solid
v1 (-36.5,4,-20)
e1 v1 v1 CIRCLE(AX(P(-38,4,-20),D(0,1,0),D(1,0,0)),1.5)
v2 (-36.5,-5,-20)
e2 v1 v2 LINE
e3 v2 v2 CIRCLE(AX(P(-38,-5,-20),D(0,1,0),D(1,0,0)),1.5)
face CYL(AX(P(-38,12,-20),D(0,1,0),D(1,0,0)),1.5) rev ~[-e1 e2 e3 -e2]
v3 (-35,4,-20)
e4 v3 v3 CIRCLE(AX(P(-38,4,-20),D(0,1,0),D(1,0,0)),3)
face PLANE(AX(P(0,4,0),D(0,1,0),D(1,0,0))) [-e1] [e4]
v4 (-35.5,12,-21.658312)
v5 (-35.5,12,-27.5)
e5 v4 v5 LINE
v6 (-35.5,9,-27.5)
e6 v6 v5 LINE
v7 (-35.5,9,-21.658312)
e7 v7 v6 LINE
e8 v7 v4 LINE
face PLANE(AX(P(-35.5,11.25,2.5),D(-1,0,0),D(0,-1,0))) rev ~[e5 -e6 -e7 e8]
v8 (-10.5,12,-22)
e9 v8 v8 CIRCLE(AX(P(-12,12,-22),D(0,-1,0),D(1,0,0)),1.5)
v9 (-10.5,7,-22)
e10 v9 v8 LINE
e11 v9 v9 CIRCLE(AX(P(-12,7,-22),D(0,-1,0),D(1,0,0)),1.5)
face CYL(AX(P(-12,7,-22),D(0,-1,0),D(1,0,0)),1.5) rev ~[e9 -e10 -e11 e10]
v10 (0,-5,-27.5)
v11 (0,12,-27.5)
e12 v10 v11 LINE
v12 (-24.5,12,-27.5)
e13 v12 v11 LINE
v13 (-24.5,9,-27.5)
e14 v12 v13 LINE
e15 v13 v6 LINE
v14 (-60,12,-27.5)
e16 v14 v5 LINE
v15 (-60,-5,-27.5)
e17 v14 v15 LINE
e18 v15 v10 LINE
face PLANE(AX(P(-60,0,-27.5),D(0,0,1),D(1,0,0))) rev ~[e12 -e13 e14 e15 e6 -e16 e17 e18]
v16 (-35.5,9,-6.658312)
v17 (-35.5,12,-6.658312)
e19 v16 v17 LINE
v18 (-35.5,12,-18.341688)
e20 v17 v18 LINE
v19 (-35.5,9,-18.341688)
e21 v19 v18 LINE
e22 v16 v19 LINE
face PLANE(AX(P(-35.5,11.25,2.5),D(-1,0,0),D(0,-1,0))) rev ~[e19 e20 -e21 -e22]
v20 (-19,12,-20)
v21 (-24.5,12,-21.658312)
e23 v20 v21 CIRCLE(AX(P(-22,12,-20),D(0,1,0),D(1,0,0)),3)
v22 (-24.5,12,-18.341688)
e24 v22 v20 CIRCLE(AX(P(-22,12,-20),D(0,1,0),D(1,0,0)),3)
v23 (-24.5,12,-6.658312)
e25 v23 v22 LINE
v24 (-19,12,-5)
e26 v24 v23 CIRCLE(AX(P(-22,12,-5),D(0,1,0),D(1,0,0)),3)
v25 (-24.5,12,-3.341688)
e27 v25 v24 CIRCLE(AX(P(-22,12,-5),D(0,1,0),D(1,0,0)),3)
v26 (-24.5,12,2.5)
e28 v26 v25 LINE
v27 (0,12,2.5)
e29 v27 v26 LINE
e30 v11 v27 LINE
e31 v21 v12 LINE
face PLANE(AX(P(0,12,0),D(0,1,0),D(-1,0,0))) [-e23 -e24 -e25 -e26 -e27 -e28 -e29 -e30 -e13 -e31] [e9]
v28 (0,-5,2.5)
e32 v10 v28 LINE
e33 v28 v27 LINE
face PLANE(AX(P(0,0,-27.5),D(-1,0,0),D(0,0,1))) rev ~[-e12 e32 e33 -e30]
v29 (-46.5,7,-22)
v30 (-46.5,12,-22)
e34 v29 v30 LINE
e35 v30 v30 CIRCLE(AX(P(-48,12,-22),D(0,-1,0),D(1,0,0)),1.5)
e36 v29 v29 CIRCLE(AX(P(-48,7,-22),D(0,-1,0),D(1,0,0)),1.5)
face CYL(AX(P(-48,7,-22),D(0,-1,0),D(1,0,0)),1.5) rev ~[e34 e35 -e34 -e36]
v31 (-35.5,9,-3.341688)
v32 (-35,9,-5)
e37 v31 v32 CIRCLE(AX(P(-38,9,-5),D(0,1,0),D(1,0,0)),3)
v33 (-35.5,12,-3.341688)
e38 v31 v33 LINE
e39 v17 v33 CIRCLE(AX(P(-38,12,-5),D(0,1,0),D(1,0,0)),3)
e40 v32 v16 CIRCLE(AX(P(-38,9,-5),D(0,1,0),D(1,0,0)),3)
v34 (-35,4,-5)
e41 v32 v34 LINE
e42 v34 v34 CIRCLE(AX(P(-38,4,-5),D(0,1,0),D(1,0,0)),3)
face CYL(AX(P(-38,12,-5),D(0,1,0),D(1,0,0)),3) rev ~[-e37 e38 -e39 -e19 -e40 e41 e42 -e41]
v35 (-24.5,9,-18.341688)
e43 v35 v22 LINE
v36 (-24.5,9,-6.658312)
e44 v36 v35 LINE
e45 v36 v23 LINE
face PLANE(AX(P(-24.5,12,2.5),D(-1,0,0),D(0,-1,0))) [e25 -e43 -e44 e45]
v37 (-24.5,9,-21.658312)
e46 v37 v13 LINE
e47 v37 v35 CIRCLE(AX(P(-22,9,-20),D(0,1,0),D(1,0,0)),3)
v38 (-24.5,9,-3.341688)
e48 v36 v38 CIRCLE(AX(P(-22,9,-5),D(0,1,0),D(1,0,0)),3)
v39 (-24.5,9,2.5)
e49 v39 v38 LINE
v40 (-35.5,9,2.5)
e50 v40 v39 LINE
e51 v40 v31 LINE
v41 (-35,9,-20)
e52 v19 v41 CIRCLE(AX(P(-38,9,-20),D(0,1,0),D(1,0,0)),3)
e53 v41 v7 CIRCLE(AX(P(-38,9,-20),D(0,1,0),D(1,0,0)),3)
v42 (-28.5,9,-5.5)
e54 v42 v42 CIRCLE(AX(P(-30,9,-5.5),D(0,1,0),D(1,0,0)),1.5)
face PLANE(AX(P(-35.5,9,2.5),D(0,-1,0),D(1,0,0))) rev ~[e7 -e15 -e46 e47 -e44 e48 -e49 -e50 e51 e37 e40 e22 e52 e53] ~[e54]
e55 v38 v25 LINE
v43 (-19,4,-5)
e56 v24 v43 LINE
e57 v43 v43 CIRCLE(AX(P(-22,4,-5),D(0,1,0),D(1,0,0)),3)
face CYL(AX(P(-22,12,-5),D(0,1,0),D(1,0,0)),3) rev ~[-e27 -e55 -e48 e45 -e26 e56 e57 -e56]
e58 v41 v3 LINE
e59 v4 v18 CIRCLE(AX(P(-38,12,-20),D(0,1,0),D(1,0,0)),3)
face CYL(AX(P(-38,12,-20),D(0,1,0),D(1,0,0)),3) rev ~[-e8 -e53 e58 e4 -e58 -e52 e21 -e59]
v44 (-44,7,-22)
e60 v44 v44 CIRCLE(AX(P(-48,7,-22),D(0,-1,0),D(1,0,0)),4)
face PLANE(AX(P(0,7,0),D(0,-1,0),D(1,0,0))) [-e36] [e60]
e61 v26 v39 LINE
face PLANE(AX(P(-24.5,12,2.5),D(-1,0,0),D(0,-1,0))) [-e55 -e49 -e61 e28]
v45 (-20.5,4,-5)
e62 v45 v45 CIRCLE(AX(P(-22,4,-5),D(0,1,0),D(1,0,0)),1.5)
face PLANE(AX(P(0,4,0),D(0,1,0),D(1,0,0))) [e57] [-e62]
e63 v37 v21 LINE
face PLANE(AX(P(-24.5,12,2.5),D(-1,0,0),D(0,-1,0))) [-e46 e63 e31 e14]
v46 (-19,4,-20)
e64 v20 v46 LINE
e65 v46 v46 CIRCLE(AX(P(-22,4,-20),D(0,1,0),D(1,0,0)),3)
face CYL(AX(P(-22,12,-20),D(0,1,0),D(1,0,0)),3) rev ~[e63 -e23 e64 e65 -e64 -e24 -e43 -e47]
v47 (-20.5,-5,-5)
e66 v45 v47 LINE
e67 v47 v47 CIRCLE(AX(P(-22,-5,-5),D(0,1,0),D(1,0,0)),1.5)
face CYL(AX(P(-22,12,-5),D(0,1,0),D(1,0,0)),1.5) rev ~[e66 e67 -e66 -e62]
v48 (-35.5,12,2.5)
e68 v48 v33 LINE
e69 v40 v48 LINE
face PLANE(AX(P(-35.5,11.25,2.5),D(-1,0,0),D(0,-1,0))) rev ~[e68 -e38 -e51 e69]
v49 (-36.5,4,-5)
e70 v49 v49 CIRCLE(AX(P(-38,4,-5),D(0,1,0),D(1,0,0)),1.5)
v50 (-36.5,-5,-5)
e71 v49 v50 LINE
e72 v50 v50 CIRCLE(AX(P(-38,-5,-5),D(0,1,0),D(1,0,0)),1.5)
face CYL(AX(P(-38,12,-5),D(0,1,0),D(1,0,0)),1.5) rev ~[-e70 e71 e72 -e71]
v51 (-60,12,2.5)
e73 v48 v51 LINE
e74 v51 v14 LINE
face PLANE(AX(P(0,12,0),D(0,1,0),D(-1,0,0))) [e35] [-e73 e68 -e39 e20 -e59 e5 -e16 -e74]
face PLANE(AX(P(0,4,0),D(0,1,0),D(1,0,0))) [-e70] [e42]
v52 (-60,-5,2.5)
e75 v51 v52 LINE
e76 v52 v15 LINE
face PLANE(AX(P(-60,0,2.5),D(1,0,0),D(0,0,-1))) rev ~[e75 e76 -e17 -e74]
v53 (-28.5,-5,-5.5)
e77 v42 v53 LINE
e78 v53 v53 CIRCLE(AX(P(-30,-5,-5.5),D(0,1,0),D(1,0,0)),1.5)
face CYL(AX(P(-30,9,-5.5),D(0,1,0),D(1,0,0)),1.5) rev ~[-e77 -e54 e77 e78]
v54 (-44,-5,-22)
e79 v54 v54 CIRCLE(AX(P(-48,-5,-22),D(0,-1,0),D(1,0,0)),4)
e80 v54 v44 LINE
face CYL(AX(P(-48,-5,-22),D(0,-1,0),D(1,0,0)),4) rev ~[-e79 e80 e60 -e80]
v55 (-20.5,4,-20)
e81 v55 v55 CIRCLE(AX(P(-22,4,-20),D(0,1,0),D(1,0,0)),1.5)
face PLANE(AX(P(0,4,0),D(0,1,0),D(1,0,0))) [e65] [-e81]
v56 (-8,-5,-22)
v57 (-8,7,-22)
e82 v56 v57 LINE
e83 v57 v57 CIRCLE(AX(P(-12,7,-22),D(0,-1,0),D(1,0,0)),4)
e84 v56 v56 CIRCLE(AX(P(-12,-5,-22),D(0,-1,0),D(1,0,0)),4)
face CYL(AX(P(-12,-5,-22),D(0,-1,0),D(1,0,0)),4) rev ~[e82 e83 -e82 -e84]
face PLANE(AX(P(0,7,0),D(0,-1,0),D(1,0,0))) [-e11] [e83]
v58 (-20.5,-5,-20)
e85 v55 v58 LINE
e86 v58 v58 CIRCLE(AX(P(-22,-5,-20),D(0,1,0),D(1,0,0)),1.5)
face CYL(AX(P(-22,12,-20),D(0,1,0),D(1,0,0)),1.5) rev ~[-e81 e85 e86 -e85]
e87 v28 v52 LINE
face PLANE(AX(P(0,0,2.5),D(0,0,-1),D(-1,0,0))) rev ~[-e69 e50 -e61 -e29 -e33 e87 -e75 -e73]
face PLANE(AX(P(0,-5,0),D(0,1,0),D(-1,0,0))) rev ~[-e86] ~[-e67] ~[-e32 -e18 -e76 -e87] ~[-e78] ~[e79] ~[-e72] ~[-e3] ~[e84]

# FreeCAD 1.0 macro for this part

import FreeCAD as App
import Part
import Sketcher


def add_polygon(sketch, points):
    """Adds a closed chain of lines whose ends are joined by coincident constraints."""
    first, n = sketch.GeometryCount, len(points)
    for a, b in zip(points, points[1:] + points[:1]):
        sketch.addGeometry(Part.LineSegment(App.Vector(*a, 0), App.Vector(*b, 0)), False)
    for i in range(n):
        sketch.addConstraint(Sketcher.Constraint("Coincident", first + i, 2, first + (i + 1) % n, 1))

doc = App.newDocument("Part")
body = doc.addObject("PartDesign::Body", "Body")

sketch1 = body.newObject("Sketcher::SketchObject", "Sketch")
sketch1.AttachmentSupport = (doc.getObject("XZ_Plane"), [""])
sketch1.MapMode = "FlatFace"
add_polygon(sketch1, [(-60, 2.5), (0, 2.5), (0, -27.5), (-60, -27.5)])
sketch1.addConstraint([
    Sketcher.Constraint("Horizontal", 0),
    Sketcher.Constraint("Vertical", 1),
    Sketcher.Constraint("Horizontal", 2),
    Sketcher.Constraint("Vertical", 3),
    Sketcher.Constraint("PointOnObject", 0, 2, -2),
    Sketcher.Constraint("DistanceX", 0, 1, 0, 2, 60.0),
    Sketcher.Constraint("DistanceY", 1, 2, 1, 1, 30.0),
    Sketcher.Constraint("DistanceY", -1, 1, 0, 2, 2.5),
])
pad1 = body.newObject("PartDesign::Pad", "Pad")
pad1.Profile = sketch1
pad1.Type = "TwoLengths"
pad1.Length = 5
pad1.Length2 = 12

sketch2 = body.newObject("Sketcher::SketchObject", "Sketch001")
sketch2.AttachmentSupport = (doc.getObject("XY_Plane"), [""])
sketch2.MapMode = "FlatFace"
sketch2.AttachmentOffset = App.Placement(App.Vector(0, 0, 2.5), App.Rotation())
add_polygon(sketch2, [(-24.5, 9), (-24.5, 12), (-35.5, 12), (-35.5, 9)])
sketch2.addConstraint([
    Sketcher.Constraint("Vertical", 0),
    Sketcher.Constraint("Horizontal", 1),
    Sketcher.Constraint("Vertical", 2),
    Sketcher.Constraint("Horizontal", 3),
    Sketcher.Constraint("DistanceX", 1, 2, 1, 1, 11.0),
    Sketcher.Constraint("DistanceY", 0, 1, 0, 2, 3.0),
    Sketcher.Constraint("DistanceY", -1, 1, 0, 2, 12.0),
    Sketcher.Constraint("DistanceX", 0, 2, -1, 1, 24.5),
])
pocket1 = body.newObject("PartDesign::Pocket", "Pocket")
pocket1.Profile = sketch2
pocket1.Type = "UpToFirst"

sketch3 = body.newObject("Sketcher::SketchObject", "Sketch002")
sketch3.AttachmentSupport = (doc.getObject("XZ_Plane"), [""])
sketch3.MapMode = "FlatFace"
sketch3.AttachmentOffset = App.Placement(App.Vector(0, 0, -9), App.Rotation())
sketch3.addGeometry(Part.Circle(App.Vector(-30, -5.5, 0), App.Vector(0, 0, 1), 1.5), False)
sketch3.addConstraint([
    Sketcher.Constraint("Diameter", 0, 3.0),
    Sketcher.Constraint("DistanceX", 0, 3, -1, 1, 30.0),
    Sketcher.Constraint("DistanceY", 0, 3, -1, 1, 5.5),
])
pocket2 = body.newObject("PartDesign::Pocket", "Pocket001")
pocket2.Profile = sketch3
pocket2.Type = "UpToFirst"
pocket2.Reversed = True

sketch4 = body.newObject("Sketcher::SketchObject", "Sketch003")
sketch4.AttachmentSupport = (doc.getObject("XZ_Plane"), [""])
sketch4.MapMode = "FlatFace"
sketch4.AttachmentOffset = App.Placement(App.Vector(0, 0, 5), App.Rotation())
sketch4.addGeometry([
    Part.Circle(App.Vector(-12, -22, 0), App.Vector(0, 0, 1), 4),
    Part.Circle(App.Vector(-48, -22, 0), App.Vector(0, 0, 1), 4),
], False)
sketch4.addConstraint([
    Sketcher.Constraint("Equal", 0, 1),
    Sketcher.Constraint("Horizontal", 0, 3, 1, 3),
    Sketcher.Constraint("Diameter", 0, 8.0),
    Sketcher.Constraint("DistanceX", 0, 3, -1, 1, 12.0),
    Sketcher.Constraint("DistanceY", 0, 3, -1, 1, 22.0),
    Sketcher.Constraint("DistanceX", 1, 3, -1, 1, 48.0),
])
pocket3 = body.newObject("PartDesign::Pocket", "Pocket002")
pocket3.Profile = sketch4
pocket3.Length = 12

sketch5 = body.newObject("Sketcher::SketchObject", "Sketch004")
sketch5.AttachmentSupport = (doc.getObject("XZ_Plane"), [""])
sketch5.MapMode = "FlatFace"
sketch5.AttachmentOffset = App.Placement(App.Vector(0, 0, -7), App.Rotation())
sketch5.addGeometry([
    Part.Circle(App.Vector(-12, -22, 0), App.Vector(0, 0, 1), 1.5),
    Part.Circle(App.Vector(-48, -22, 0), App.Vector(0, 0, 1), 1.5),
], False)
sketch5.addConstraint([
    Sketcher.Constraint("Equal", 0, 1),
    Sketcher.Constraint("Horizontal", 0, 3, 1, 3),
    Sketcher.Constraint("Diameter", 0, 3.0),
    Sketcher.Constraint("DistanceX", 0, 3, -1, 1, 12.0),
    Sketcher.Constraint("DistanceY", 0, 3, -1, 1, 22.0),
    Sketcher.Constraint("DistanceX", 1, 3, -1, 1, 48.0),
])
pocket4 = body.newObject("PartDesign::Pocket", "Pocket003")
pocket4.Profile = sketch5
pocket4.Length = 5

sketch6 = body.newObject("Sketcher::SketchObject", "Sketch005")
sketch6.AttachmentSupport = (doc.getObject("XZ_Plane"), [""])
sketch6.MapMode = "FlatFace"
sketch6.AttachmentOffset = App.Placement(App.Vector(0, 0, -12), App.Rotation())
sketch6.addGeometry([
    Part.Circle(App.Vector(-22, -5, 0), App.Vector(0, 0, 1), 1.5),
    Part.Circle(App.Vector(-22, -20, 0), App.Vector(0, 0, 1), 1.5),
    Part.Circle(App.Vector(-38, -20, 0), App.Vector(0, 0, 1), 1.5),
    Part.Circle(App.Vector(-38, -5, 0), App.Vector(0, 0, 1), 1.5),
], False)
sketch6.addConstraint([
    Sketcher.Constraint("Equal", 0, 1),
    Sketcher.Constraint("Equal", 1, 2),
    Sketcher.Constraint("Equal", 2, 3),
    Sketcher.Constraint("Horizontal", 1, 3, 2, 3),
    Sketcher.Constraint("Horizontal", 0, 3, 3, 3),
    Sketcher.Constraint("Vertical", 0, 3, 1, 3),
    Sketcher.Constraint("Vertical", 2, 3, 3, 3),
    Sketcher.Constraint("Diameter", 0, 3.0),
    Sketcher.Constraint("DistanceX", 0, 3, -1, 1, 22.0),
    Sketcher.Constraint("DistanceY", 1, 3, 0, 3, 15.0),
    Sketcher.Constraint("DistanceX", 2, 3, 1, 3, 16.0),
    Sketcher.Constraint("DistanceY", 0, 3, -1, 1, 5.0),
])
pocket5 = body.newObject("PartDesign::Pocket", "Pocket004")
pocket5.Profile = sketch6
pocket5.Length = 17
pocket5.Reversed = True

sketch7 = body.newObject("Sketcher::SketchObject", "Sketch006")
sketch7.AttachmentSupport = (doc.getObject("XZ_Plane"), [""])
sketch7.MapMode = "FlatFace"
sketch7.AttachmentOffset = App.Placement(App.Vector(0, 0, -12), App.Rotation())
sketch7.addGeometry([
    Part.Circle(App.Vector(-38, -20, 0), App.Vector(0, 0, 1), 3),
    Part.Circle(App.Vector(-22, -20, 0), App.Vector(0, 0, 1), 3),
    Part.Circle(App.Vector(-38, -5, 0), App.Vector(0, 0, 1), 3),
    Part.Circle(App.Vector(-22, -5, 0), App.Vector(0, 0, 1), 3),
], False)
sketch7.addConstraint([
    Sketcher.Constraint("Equal", 0, 1),
    Sketcher.Constraint("Equal", 1, 2),
    Sketcher.Constraint("Equal", 2, 3),
    Sketcher.Constraint("Horizontal", 0, 3, 1, 3),
    Sketcher.Constraint("Horizontal", 2, 3, 3, 3),
    Sketcher.Constraint("Vertical", 0, 3, 2, 3),
    Sketcher.Constraint("Vertical", 1, 3, 3, 3),
    Sketcher.Constraint("Diameter", 0, 6.0),
    Sketcher.Constraint("DistanceX", 0, 3, 1, 3, 16.0),
    Sketcher.Constraint("DistanceY", 0, 3, 2, 3, 15.0),
    Sketcher.Constraint("DistanceX", 0, 3, -1, 1, 38.0),
    Sketcher.Constraint("DistanceY", 0, 3, -1, 1, 20.0),
])
pocket6 = body.newObject("PartDesign::Pocket", "Pocket005")
pocket6.Profile = sketch7
pocket6.Length = 8
pocket6.Reversed = True

doc.recompute()
